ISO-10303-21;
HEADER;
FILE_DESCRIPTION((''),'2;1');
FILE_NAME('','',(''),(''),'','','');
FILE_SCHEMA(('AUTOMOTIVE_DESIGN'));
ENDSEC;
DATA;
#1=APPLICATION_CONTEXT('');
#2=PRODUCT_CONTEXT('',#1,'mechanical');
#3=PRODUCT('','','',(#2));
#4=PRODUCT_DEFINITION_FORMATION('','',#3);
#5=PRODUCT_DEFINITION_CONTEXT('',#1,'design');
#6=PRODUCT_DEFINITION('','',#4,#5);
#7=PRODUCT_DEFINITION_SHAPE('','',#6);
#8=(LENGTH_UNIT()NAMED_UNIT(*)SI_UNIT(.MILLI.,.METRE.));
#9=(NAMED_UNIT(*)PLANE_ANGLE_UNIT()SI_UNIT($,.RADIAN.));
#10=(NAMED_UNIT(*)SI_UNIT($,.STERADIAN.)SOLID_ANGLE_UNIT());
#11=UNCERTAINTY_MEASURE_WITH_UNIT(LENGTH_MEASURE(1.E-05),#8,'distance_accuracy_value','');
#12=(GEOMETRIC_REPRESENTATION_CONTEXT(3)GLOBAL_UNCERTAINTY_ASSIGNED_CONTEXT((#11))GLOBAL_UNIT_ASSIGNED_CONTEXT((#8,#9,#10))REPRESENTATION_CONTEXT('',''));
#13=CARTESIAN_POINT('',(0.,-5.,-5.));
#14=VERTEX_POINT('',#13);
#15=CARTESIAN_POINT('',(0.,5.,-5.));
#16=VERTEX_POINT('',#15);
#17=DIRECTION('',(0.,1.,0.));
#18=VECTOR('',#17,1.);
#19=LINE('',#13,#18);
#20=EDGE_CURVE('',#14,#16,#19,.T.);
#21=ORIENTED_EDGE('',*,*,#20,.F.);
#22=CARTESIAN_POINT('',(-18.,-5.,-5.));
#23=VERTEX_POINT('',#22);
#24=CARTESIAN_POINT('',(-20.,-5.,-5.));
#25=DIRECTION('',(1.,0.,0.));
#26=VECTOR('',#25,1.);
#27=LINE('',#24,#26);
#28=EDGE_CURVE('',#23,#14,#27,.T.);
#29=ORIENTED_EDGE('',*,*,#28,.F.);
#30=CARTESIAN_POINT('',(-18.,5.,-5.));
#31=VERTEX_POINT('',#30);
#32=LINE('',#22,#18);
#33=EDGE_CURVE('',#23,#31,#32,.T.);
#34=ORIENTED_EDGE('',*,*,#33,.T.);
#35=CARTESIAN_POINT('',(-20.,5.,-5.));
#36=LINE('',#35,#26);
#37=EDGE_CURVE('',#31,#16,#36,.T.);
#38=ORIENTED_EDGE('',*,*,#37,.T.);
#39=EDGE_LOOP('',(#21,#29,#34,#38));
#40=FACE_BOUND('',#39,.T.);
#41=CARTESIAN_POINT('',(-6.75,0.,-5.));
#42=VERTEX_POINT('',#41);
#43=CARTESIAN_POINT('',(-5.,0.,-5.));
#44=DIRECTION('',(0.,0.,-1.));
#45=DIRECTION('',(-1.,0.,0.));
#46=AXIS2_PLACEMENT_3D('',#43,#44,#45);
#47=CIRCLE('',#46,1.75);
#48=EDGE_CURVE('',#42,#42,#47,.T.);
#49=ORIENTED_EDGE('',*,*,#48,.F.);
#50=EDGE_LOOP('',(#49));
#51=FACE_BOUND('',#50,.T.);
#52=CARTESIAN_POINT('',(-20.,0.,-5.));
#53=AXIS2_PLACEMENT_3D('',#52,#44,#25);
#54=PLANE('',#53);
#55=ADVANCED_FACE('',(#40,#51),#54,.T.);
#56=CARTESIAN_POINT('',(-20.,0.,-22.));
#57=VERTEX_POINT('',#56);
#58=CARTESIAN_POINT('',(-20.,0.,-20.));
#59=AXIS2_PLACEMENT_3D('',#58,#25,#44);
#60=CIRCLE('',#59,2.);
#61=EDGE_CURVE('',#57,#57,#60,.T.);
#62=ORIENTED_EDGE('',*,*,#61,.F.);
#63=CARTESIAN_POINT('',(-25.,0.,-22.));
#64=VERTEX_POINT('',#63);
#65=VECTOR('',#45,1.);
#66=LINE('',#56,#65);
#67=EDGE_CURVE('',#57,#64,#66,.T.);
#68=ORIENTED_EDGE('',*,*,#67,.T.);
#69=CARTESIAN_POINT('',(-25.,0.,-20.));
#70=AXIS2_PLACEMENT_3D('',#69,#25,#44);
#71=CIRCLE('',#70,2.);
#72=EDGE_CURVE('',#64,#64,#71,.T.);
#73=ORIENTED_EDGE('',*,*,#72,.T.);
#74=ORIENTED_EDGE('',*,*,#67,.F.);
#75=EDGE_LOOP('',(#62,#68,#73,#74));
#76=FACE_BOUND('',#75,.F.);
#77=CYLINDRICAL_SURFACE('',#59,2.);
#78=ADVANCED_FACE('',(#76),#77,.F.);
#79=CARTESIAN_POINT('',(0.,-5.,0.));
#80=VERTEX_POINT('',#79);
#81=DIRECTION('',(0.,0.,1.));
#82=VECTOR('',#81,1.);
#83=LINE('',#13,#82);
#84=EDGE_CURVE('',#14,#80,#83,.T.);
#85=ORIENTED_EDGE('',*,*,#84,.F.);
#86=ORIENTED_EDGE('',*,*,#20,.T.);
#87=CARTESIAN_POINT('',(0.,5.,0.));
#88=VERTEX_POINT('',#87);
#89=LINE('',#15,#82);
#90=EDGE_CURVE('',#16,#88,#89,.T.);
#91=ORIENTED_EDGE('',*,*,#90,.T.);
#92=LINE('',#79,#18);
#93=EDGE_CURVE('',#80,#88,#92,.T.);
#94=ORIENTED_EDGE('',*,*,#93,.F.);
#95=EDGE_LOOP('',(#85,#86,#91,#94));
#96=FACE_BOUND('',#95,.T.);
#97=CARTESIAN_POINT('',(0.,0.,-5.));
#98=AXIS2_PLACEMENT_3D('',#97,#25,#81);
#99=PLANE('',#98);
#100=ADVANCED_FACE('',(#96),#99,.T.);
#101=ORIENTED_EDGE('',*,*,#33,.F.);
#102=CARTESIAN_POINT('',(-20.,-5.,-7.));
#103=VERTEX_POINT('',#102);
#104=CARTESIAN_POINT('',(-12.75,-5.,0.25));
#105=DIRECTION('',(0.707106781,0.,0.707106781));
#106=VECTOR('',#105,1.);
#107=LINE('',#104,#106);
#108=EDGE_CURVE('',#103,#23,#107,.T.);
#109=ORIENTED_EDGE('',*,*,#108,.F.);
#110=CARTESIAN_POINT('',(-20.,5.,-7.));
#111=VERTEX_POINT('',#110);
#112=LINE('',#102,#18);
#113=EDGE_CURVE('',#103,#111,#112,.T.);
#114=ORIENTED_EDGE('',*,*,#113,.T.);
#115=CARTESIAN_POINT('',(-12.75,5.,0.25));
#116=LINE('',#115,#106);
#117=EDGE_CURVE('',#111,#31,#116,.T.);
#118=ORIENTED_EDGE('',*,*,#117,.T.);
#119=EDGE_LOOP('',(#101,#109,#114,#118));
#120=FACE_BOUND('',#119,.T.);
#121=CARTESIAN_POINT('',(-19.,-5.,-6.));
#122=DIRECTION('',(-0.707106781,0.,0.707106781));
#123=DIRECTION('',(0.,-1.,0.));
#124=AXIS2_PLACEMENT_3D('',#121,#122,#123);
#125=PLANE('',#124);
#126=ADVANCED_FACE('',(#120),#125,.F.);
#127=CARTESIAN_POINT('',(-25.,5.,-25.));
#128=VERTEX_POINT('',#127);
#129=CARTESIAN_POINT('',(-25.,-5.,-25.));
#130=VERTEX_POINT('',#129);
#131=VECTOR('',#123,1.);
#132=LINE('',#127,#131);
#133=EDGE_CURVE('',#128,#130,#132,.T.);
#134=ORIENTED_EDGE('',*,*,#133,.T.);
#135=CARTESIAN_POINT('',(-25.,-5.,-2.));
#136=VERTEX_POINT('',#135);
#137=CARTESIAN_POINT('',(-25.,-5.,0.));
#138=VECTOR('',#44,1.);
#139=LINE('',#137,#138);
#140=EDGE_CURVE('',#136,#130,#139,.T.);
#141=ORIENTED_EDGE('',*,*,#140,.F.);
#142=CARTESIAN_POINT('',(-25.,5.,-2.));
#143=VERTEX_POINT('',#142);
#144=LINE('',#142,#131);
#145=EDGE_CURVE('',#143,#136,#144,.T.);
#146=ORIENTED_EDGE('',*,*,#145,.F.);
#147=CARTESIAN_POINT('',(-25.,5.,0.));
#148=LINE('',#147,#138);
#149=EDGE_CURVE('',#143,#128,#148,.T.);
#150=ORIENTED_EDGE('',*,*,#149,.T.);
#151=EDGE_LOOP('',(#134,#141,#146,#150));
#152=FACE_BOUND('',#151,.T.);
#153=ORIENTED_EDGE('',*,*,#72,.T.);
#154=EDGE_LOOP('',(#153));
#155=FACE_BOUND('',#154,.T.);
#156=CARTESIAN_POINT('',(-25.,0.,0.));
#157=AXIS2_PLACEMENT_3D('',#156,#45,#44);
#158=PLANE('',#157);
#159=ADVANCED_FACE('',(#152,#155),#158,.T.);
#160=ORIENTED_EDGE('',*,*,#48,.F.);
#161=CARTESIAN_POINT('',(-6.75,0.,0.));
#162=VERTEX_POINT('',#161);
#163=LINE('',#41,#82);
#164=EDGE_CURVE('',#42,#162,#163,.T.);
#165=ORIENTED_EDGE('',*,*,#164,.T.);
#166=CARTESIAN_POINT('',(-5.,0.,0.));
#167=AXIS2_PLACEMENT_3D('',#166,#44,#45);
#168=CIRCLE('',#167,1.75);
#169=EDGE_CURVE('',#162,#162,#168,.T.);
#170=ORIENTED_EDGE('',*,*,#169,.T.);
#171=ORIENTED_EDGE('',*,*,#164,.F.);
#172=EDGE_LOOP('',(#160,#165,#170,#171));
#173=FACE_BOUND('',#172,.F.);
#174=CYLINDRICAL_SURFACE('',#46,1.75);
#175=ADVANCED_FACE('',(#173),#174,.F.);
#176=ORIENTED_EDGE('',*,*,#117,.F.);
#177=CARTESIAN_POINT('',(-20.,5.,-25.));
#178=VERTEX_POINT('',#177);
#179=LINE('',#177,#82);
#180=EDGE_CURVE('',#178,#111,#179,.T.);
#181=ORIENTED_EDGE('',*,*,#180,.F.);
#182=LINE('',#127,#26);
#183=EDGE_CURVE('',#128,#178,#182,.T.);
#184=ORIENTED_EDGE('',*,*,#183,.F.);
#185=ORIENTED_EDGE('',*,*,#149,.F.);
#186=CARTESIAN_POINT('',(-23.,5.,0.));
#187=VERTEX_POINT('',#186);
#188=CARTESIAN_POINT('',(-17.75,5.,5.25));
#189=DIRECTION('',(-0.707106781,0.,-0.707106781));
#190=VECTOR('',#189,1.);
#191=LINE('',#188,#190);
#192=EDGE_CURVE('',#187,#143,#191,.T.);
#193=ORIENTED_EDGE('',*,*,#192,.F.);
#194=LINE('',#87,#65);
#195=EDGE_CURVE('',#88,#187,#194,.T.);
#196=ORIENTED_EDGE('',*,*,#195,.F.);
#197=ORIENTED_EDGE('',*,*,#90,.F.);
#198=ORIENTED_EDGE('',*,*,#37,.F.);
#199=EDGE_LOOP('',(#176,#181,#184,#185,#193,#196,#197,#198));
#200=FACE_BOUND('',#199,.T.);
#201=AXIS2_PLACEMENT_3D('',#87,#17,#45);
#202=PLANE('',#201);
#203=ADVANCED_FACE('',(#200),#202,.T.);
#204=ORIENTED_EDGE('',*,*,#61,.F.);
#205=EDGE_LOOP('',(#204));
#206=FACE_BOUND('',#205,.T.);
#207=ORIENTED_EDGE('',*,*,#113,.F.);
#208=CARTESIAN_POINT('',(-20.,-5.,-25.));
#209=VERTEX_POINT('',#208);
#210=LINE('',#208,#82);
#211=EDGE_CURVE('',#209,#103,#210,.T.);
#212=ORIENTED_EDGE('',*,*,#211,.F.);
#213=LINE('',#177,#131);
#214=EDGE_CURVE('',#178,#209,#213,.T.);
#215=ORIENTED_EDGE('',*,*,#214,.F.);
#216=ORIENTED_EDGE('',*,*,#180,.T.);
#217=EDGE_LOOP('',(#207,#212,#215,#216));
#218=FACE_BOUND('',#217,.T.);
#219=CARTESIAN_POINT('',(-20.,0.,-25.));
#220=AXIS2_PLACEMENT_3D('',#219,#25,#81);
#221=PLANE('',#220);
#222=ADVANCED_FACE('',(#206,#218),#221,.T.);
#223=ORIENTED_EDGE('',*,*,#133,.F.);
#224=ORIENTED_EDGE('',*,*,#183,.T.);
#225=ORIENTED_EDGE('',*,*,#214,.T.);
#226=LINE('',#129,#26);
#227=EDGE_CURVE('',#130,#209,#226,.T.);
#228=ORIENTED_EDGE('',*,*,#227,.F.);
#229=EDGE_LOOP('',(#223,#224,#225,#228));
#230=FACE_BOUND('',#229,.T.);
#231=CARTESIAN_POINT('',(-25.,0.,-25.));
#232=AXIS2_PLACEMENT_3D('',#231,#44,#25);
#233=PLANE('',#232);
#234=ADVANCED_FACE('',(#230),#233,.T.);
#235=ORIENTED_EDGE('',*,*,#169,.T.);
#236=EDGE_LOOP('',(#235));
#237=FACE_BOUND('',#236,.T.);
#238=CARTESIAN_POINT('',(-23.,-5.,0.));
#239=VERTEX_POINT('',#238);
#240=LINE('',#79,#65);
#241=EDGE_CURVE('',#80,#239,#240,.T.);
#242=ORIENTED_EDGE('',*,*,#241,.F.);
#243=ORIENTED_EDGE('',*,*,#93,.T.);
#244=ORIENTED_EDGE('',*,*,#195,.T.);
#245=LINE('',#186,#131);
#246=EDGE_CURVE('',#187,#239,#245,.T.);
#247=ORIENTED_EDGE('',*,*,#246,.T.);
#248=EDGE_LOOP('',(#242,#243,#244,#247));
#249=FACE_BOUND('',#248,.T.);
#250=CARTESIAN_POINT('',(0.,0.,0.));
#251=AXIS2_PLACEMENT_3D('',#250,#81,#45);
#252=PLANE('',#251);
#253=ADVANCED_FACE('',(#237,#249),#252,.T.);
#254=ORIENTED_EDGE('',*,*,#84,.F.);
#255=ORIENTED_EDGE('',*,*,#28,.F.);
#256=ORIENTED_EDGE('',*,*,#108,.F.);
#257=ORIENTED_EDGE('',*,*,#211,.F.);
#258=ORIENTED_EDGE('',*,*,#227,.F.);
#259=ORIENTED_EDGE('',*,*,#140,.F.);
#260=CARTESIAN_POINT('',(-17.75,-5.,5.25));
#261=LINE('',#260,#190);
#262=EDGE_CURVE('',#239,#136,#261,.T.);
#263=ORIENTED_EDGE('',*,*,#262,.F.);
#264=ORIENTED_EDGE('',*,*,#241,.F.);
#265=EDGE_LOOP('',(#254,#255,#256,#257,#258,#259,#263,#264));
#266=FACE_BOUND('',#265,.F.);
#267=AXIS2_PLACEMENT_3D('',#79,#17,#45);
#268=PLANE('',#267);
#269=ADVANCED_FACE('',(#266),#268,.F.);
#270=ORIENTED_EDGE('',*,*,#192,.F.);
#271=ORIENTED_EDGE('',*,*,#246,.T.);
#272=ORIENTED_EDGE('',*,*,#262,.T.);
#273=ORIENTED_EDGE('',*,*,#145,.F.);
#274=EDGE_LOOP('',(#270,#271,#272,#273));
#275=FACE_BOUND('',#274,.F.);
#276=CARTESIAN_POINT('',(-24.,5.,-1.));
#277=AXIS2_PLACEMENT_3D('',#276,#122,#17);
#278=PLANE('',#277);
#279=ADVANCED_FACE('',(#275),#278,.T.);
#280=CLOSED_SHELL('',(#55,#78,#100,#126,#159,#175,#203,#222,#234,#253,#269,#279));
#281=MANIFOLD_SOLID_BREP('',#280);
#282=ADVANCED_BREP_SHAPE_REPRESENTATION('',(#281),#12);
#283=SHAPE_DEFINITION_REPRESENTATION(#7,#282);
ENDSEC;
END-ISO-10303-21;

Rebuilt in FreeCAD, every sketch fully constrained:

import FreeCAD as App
import Part
import Sketcher
Q = App.Units.Quantity


def edges_at(feature, points):
    """Names of the edges that pass closest to the given points."""
    edges = feature.Shape.Edges
    near = lambda p: min(range(len(edges)), key=lambda i: edges[i].distToShape(Part.Vertex(*p))[0])
    return sorted({f"Edge{near(p) + 1}" for p in points})

doc = App.newDocument("Part")
body = doc.addObject("PartDesign::Body", "Body")

sketch1 = body.newObject("Sketcher::SketchObject", "Sketch")
sketch1.AttachmentSupport = (doc.getObject("XZ_Plane"), [""])
sketch1.MapMode = "FlatFace"
sketch1.addGeometry([
    Part.LineSegment(App.Vector(-25, 0, 0), App.Vector(0, 0, 0)),
    Part.LineSegment(App.Vector(0, 0, 0), App.Vector(0, -5, 0)),
    Part.LineSegment(App.Vector(0, -5, 0), App.Vector(-20, -5, 0)),
    Part.LineSegment(App.Vector(-20, -5, 0), App.Vector(-20, -25, 0)),
    Part.LineSegment(App.Vector(-20, -25, 0), App.Vector(-25, -25, 0)),
    Part.LineSegment(App.Vector(-25, -25, 0), App.Vector(-25, 0, 0)),
], False)
sketch1.addConstraint([
    Sketcher.Constraint("Coincident", 0, 2, 1, 1),
    Sketcher.Constraint("Coincident", 1, 2, 2, 1),
    Sketcher.Constraint("Coincident", 2, 2, 3, 1),
    Sketcher.Constraint("Coincident", 3, 2, 4, 1),
    Sketcher.Constraint("Coincident", 4, 2, 5, 1),
    Sketcher.Constraint("Coincident", 5, 2, 0, 1),
    Sketcher.Constraint("Horizontal", 0),
    Sketcher.Constraint("Vertical", 1),
    Sketcher.Constraint("Horizontal", 2),
    Sketcher.Constraint("Vertical", 3),
    Sketcher.Constraint("Horizontal", 4),
    Sketcher.Constraint("Vertical", 5),
    Sketcher.Constraint("Coincident", 0, 2, -1, 1),
    Sketcher.Constraint("Equal", 4, 1),
    Sketcher.Constraint("Equal", 2, 3),
    Sketcher.Constraint("DistanceX", 0, 1, 0, 2, Q("25 mm")),
    Sketcher.Constraint("DistanceX", 4, 2, 4, 1, Q("5 mm")),
])
pad1 = body.newObject("PartDesign::Pad", "Pad")
pad1.Profile = sketch1
pad1.Length = 10
pad1.Midplane = True

sketch2 = body.newObject("Sketcher::SketchObject", "Sketch001")
sketch2.AttachmentSupport = (doc.getObject("YZ_Plane"), [""])
sketch2.MapMode = "FlatFace"
sketch2.AttachmentOffset = App.Placement(App.Vector(0, 0, -20), App.Rotation())
sketch2.addGeometry(Part.Circle(App.Vector(0, -20, 0), App.Vector(0, 0, 1), 2), False)
sketch2.addConstraint([
    Sketcher.Constraint("PointOnObject", 0, 3, -2),
    Sketcher.Constraint("Diameter", 0, Q("4 mm")),
    Sketcher.Constraint("DistanceY", 0, 3, -1, 1, Q("20 mm")),
])
pocket1 = body.newObject("PartDesign::Pocket", "Pocket")
pocket1.Profile = sketch2
pocket1.Type = "ThroughAll"

sketch3 = body.newObject("Sketcher::SketchObject", "Sketch002")
sketch3.AttachmentSupport = (doc.getObject("XY_Plane"), [""])
sketch3.MapMode = "FlatFace"
sketch3.AttachmentOffset = App.Placement(App.Vector(0, 0, -5), App.Rotation())
sketch3.addGeometry(Part.Circle(App.Vector(-5, 0, 0), App.Vector(0, 0, 1), 1.8), False)
sketch3.addConstraint([
    Sketcher.Constraint("PointOnObject", 0, 3, -1),
    Sketcher.Constraint("Diameter", 0, Q("3.5 mm")),
    Sketcher.Constraint("DistanceX", 0, 3, -1, 1, Q("5 mm")),
])
pocket2 = body.newObject("PartDesign::Pocket", "Pocket001")
pocket2.Profile = sketch3
pocket2.Length = 10
pocket2.Reversed = True
doc.recompute()

chamfer = body.newObject("PartDesign::Chamfer", "Chamfer")
chamfer.Base = (pocket2, edges_at(pocket2, [(-25, 0, 0), (-20, 0, -5)]))
chamfer.Size = 2

doc.recompute()
